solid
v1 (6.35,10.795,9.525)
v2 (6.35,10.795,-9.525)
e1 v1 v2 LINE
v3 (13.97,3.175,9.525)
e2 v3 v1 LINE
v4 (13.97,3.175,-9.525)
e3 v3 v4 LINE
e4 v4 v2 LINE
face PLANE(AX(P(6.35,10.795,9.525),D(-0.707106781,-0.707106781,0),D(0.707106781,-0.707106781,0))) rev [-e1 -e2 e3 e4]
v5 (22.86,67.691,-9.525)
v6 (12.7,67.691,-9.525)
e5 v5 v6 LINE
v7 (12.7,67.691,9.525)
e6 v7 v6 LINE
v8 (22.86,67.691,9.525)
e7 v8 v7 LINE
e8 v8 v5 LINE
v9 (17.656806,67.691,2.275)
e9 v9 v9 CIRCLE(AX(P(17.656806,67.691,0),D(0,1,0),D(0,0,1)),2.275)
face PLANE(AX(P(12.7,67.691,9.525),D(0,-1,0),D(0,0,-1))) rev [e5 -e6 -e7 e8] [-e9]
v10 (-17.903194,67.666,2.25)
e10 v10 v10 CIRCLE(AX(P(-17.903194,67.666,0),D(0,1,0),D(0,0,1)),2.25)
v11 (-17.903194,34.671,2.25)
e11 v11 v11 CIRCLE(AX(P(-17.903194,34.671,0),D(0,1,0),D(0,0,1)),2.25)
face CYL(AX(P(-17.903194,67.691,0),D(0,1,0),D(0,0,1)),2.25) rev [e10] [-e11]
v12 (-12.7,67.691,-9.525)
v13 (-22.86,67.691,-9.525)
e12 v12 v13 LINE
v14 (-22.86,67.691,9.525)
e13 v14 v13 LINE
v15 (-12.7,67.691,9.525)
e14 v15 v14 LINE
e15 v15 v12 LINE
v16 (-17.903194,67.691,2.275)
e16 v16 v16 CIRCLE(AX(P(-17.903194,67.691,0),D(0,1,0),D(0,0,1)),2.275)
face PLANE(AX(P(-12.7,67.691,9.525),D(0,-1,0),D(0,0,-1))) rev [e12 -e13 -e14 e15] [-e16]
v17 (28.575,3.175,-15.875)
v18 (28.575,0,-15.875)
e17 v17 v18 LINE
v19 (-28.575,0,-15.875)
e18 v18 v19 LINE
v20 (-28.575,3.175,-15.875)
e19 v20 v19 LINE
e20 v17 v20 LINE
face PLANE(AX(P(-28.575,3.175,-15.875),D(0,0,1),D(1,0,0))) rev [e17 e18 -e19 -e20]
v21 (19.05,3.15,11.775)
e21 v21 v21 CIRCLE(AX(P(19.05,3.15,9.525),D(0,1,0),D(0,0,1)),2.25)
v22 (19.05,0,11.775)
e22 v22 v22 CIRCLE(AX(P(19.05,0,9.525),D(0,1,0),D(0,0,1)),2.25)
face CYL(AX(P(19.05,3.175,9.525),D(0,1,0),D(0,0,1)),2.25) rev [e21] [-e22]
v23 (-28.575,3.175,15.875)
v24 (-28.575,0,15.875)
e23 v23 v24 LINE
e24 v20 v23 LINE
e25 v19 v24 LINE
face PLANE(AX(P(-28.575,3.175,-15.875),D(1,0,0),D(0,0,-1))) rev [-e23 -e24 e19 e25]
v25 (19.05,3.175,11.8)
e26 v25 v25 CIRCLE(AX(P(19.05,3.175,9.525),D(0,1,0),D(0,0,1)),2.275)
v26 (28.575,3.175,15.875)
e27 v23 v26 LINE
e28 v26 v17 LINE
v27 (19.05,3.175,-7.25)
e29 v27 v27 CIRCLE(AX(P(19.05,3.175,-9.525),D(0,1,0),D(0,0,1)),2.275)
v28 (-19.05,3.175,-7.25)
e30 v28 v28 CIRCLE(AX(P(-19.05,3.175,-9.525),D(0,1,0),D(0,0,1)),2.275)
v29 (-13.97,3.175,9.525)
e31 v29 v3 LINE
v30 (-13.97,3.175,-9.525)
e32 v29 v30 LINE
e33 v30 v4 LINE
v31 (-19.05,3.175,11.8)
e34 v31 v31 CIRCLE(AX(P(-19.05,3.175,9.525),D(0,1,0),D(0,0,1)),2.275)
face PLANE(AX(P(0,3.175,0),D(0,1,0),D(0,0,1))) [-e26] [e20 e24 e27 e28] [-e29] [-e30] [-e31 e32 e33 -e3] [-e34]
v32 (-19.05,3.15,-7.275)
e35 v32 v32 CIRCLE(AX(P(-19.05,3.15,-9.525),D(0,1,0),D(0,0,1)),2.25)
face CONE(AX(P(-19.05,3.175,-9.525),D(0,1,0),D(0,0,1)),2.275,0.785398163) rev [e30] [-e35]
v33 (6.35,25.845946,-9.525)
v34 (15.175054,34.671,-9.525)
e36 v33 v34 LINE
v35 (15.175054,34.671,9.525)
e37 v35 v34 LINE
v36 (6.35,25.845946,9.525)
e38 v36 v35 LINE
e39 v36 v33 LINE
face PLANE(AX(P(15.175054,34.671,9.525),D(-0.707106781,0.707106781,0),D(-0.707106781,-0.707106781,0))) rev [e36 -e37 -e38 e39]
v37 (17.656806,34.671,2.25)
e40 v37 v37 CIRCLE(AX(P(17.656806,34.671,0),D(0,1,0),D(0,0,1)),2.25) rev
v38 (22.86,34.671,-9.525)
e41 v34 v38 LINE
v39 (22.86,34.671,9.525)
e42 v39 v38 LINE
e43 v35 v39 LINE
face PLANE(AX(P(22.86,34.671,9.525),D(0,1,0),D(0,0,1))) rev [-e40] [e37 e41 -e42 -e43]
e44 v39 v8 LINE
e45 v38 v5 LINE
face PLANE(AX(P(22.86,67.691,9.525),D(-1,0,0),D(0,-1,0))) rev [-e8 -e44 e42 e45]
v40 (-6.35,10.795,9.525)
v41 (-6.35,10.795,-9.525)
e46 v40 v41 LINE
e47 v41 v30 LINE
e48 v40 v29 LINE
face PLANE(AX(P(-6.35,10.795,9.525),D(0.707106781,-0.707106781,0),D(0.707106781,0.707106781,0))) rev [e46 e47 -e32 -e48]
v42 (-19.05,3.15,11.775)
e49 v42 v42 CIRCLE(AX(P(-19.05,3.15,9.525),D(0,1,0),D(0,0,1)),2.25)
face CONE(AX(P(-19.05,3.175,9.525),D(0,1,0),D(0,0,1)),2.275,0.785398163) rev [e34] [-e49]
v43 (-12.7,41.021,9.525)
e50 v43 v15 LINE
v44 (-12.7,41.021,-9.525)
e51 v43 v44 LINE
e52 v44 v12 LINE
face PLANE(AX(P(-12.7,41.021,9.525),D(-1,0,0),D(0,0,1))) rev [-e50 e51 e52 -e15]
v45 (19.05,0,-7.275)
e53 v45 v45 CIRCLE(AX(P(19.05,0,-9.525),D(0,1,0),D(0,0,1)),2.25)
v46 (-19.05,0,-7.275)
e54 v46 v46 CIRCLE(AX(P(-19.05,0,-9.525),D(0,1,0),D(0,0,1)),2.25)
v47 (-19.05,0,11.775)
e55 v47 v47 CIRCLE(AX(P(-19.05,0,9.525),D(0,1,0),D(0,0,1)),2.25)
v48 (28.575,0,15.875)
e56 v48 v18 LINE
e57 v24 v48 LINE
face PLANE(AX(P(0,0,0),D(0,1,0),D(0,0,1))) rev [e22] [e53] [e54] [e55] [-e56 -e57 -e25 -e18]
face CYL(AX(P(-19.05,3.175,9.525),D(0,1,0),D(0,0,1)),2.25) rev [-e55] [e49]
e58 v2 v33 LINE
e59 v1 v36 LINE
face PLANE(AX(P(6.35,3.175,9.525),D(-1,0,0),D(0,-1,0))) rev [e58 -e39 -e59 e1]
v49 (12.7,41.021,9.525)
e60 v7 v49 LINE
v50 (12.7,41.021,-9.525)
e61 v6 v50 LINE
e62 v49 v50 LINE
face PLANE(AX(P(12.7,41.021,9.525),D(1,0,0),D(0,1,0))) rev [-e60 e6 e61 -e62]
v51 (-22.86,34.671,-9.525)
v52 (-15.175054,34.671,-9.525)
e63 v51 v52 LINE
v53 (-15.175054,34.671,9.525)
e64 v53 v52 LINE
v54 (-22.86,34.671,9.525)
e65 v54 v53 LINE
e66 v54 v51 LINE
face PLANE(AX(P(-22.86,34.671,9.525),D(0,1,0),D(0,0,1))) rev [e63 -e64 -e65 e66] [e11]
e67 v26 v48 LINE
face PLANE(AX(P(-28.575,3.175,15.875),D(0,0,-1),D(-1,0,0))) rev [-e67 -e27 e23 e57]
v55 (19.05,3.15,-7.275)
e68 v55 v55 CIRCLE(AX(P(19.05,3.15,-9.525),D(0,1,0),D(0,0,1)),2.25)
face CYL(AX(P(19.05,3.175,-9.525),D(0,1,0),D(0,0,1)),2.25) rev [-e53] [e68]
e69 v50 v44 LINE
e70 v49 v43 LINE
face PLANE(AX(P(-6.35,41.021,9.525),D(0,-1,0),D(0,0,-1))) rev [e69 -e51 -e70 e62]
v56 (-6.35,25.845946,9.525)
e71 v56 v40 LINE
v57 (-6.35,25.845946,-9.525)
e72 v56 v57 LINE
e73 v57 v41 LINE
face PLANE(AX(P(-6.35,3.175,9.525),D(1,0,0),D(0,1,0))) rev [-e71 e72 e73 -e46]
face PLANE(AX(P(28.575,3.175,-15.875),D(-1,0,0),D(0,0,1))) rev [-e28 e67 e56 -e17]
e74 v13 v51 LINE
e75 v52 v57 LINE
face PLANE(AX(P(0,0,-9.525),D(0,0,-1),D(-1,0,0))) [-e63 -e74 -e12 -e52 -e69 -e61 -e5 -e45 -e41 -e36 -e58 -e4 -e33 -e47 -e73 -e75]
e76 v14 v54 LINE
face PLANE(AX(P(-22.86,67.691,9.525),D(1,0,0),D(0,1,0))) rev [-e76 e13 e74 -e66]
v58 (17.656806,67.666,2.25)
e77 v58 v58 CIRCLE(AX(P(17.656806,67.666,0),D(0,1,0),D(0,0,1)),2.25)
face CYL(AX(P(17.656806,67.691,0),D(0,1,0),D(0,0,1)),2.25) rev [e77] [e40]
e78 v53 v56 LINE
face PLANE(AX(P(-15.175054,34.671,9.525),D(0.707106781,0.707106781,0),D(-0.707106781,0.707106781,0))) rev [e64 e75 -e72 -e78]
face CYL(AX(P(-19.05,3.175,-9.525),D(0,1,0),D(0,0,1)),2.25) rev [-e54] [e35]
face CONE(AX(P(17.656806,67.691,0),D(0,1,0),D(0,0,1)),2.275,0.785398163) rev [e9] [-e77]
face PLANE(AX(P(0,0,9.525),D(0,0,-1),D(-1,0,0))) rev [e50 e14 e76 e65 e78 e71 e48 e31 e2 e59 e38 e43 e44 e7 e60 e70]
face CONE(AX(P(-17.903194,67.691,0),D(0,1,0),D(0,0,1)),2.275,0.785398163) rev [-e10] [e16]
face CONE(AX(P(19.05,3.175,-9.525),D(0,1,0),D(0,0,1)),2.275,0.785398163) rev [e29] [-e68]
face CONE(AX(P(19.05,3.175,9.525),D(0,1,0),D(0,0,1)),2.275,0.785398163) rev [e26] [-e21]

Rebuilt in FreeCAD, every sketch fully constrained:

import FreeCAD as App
import Part
import Sketcher
from FreeCAD import Vector
Q = App.Units.Quantity


def add_polygon(sketch, points):
    """Adds a closed chain of lines whose ends are joined by coincident constraints."""
    first, n = sketch.GeometryCount, len(points)
    for a, b in zip(points, points[1:] + points[:1]):
        sketch.addGeometry(Part.LineSegment(App.Vector(*a, 0), App.Vector(*b, 0)), False)
    for i in range(n):
        sketch.addConstraint(Sketcher.Constraint("Coincident", first + i, 2, first + (i + 1) % n, 1))

doc = App.newDocument("Part")
body = doc.addObject("PartDesign::Body", "Body")

sketch1 = doc.addObject("Sketcher::SketchObject", "Sketch")
body.addObject(sketch1)
sketch1.AttachmentSupport = (doc.XZ_Plane, [""])
sketch1.MapMode = "FlatFace"
add_polygon(sketch1, [(-29, -16), (-29, 16), (29, 16), (29, -16)])
sketch1.addConstraint([
    Sketcher.Constraint("Vertical", 0),
    Sketcher.Constraint("Horizontal", 1),
    Sketcher.Constraint("Vertical", 2),
    Sketcher.Constraint("Horizontal", 3),
    Sketcher.Constraint("Symmetric", 0, 2, 2, 2, -1, 1),
    Sketcher.Constraint("DistanceX", 1, 1, 1, 2, Q("2.25 in")),
    Sketcher.Constraint("DistanceY", 0, 1, 0, 2, Q("1.25 in")),
])
pad1 = doc.addObject("PartDesign::Pad", "Pad")
body.addObject(pad1)
pad1.Profile = sketch1
pad1.Length = Q("0.125 in")
pad1.Reversed = True

sketch2 = doc.addObject("Sketcher::SketchObject", "Sketch001")
body.addObject(sketch2)
sketch2.AttachmentSupport = (doc.XZ_Plane, [""])
sketch2.MapMode = "FlatFace"
sketch2.AttachmentOffset = App.Placement(Vector(0, 0, -0.125 * 25.4), App.Rotation())
sketch2.addGeometry([
    Part.Circle(Vector(-19.1, -9.5, 0), Vector(0, 0, 1), 2.2),
    Part.Circle(Vector(19.1, -9.5, 0), Vector(0, 0, 1), 2.2),
    Part.Circle(Vector(19.1, 9.5, 0), Vector(0, 0, 1), 2.2),
    Part.Circle(Vector(-19.1, 9.5, 0), Vector(0, 0, 1), 2.2),
], False)
sketch2.addConstraint([
    Sketcher.Constraint("Equal", 0, 1),
    Sketcher.Constraint("Equal", 1, 2),
    Sketcher.Constraint("Equal", 2, 3),
    Sketcher.Constraint("Symmetric", 0, 3, 2, 3, -1, 1),
    Sketcher.Constraint("Symmetric", 1, 3, 3, 3, -1, 1),
    Sketcher.Constraint("Symmetric", 0, 3, 1, 3, -2),
    Sketcher.Constraint("DistanceX", 0, 3, 1, 3, Q("1.5 in")),
    Sketcher.Constraint("Diameter", 0, Q("4.5 mm")),
    Sketcher.Constraint("DistanceY", 1, 3, 2, 3, Q("0.75 in")),
])
doc.recompute()
hole = doc.addObject("PartDesign::Hole", "Hole")
body.addObject(hole)
hole.Profile = sketch2
hole.ThreadType = "None"
hole.Diameter = 4.5
hole.DepthType = "ThroughAll"
hole.HoleCutType = "Countersink"
hole.HoleCutDiameter = 4.55
hole.HoleCutCountersinkAngle = 90
hole.Reversed = True

sketch3 = doc.addObject("Sketcher::SketchObject", "Sketch002")
body.addObject(sketch3)
sketch3.AttachmentSupport = (doc.XY_Plane, [""])
sketch3.MapMode = "FlatFace"
add_polygon(sketch3, [(-6, 41), (-6, 3), (6, 3), (6, 41)])
sketch3.addConstraint([
    Sketcher.Constraint("Vertical", 0),
    Sketcher.Constraint("Horizontal", 1),
    Sketcher.Constraint("Vertical", 2),
    Sketcher.Constraint("Horizontal", 3),
    Sketcher.Constraint("DistanceX", 1, 1, 1, 2, Q("0.5 in")),
    Sketcher.Constraint("DistanceY", 0, 2, 0, 1, Q("1.49 in")),
    Sketcher.Constraint("DistanceX", 0, 2, -1, 1, Q("0.25 in")),
    Sketcher.Constraint("DistanceY", -1, 1, 0, 2, Q("0.125 in")),
])
pad2 = doc.addObject("PartDesign::Pad", "Pad001")
body.addObject(pad2)
pad2.Profile = sketch3
pad2.Length = Q("0.75 in")
pad2.Midplane = True

sketch4 = doc.addObject("Sketcher::SketchObject", "Sketch003")
body.addObject(sketch4)
sketch4.AttachmentSupport = (doc.XY_Plane, [""])
sketch4.MapMode = "FlatFace"
add_polygon(sketch4, [(13, 41), (6, 41), (6, 26), (15, 35), (23, 35), (23, 68), (13, 68)])
add_polygon(sketch4, [(-6, 41), (-13, 41), (-13, 68), (-23, 68), (-23, 35), (-15, 35), (-6, 26)])
add_polygon(sketch4, [(-6, 11), (-14, 3), (-6, 3)])
add_polygon(sketch4, [(6, 11), (6, 3), (14, 3)])
sketch4.addConstraint([
    Sketcher.Constraint("Horizontal", 0),
    Sketcher.Constraint("Vertical", 1),
    Sketcher.Constraint("Horizontal", 3),
    Sketcher.Constraint("Vertical", 4),
    Sketcher.Constraint("Horizontal", 5),
    Sketcher.Constraint("Vertical", 6),
    Sketcher.Constraint("Horizontal", 7),
    Sketcher.Constraint("Vertical", 8),
    Sketcher.Constraint("Horizontal", 9),
    Sketcher.Constraint("Vertical", 10),
    Sketcher.Constraint("Horizontal", 11),
    Sketcher.Constraint("Vertical", 13),
    Sketcher.Constraint("Horizontal", 15),
    Sketcher.Constraint("Vertical", 16),
    Sketcher.Constraint("Vertical", 17),
    Sketcher.Constraint("Horizontal", 18),
    Sketcher.Constraint("Symmetric", 6, 2, 7, 2, -2),
    Sketcher.Constraint("Symmetric", 4, 2, 9, 2, -2),
    Sketcher.Constraint("Symmetric", 2, 2, 11, 2, -2),
    Sketcher.Constraint("Symmetric", 1, 2, 12, 2, -2),
    Sketcher.Constraint("Symmetric", 15, 2, 17, 2, -2),
    Sketcher.Constraint("Perpendicular", 2, 12),
    Sketcher.Constraint("Perpendicular", 12, 14),
    Sketcher.Constraint("Perpendicular", 14, 19),
    Sketcher.Constraint("Horizontal", 16, 2, 19, 2),
    Sketcher.Constraint("Vertical", 13, 2, 15, 2),
    Sketcher.Constraint("DistanceX", 5, 2, 5, 1, Q("0.4 in")),
    Sketcher.Constraint("DistanceX", 15, 1, 15, 2, Q("0.3 in")),
    Sketcher.Constraint("DistanceY", 4, 1, 4, 2, Q("1.3 in")),
    Sketcher.Constraint("DistanceX", 7, 2, 6, 2, Q("1 in")),
    Sketcher.Constraint("DistanceX", 0, 2, 0, 1, Q("0.25 in")),
    Sketcher.Constraint("DistanceY", 6, 2, 6, 1, Q("1.05 in")),
    Sketcher.Constraint("DistanceY", 14, 2, 11, 2, Q("1.24 in")),
    Sketcher.Constraint("DistanceY", -1, 1, 0, 2, Q("1.615 in")),
    Sketcher.Constraint("Distance", 2, Q("12.480511 mm")),
])
pad3 = doc.addObject("PartDesign::Pad", "Pad002")
body.addObject(pad3)
pad3.Profile = sketch4
pad3.Length = Q("0.75 in")
pad3.Midplane = True

sketch5 = doc.addObject("Sketcher::SketchObject", "Sketch004")
body.addObject(sketch5)
sketch5.AttachmentSupport = (doc.XZ_Plane, [""])
sketch5.MapMode = "FlatFace"
sketch5.AttachmentOffset = App.Placement(Vector(0, 0, -2.665 * 25.4), App.Rotation())
sketch5.addGeometry([
    Part.Circle(Vector(-17.9, 0, 0), Vector(0, 0, 1), 2.2),
    Part.Circle(Vector(17.7, 0, 0), Vector(0, 0, 1), 2.2),
], False)
sketch5.addConstraint([
    Sketcher.Constraint("Equal", 0, 1),
    Sketcher.Constraint("PointOnObject", 0, 3, -1),
    Sketcher.Constraint("PointOnObject", 1, 3, -1),
    Sketcher.Constraint("DistanceX", 0, 3, 1, 3, Q("1.4 in")),
    Sketcher.Constraint("Diameter", 0, Q("4.5 mm")),
    Sketcher.Constraint("DistanceX", 0, 3, -1, 1, Q("17.903194 mm")),
])
doc.recompute()
hole2 = doc.addObject("PartDesign::Hole", "Hole001")
body.addObject(hole2)
hole2.Profile = sketch5
hole2.ThreadType = "None"
hole2.Diameter = 4.5
hole2.DepthType = "Dimension"
hole2.Depth = Q("1.3 in")
hole2.DrillPoint = "Angled"
hole2.DrillPointAngle = 118
hole2.HoleCutType = "Countersink"
hole2.HoleCutDiameter = 4.55
hole2.HoleCutCountersinkAngle = 90
hole2.Reversed = True

doc.recompute()
